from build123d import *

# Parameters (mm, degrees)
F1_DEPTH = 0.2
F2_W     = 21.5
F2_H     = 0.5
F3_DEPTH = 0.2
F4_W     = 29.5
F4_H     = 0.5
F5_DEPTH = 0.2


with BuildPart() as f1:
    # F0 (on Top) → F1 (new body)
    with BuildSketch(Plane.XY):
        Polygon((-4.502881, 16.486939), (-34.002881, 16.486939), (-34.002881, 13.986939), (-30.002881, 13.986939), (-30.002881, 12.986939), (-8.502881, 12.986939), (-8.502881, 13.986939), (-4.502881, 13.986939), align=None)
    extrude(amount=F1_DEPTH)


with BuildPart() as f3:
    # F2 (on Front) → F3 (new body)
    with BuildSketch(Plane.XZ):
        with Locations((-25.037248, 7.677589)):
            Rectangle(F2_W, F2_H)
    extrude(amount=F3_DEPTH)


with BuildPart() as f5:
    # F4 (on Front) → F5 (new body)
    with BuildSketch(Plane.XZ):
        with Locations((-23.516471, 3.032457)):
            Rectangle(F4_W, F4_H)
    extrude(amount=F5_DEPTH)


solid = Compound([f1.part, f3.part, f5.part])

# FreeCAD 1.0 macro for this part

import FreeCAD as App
import Part
import Sketcher
Q = App.Units.Quantity

doc = App.newDocument("Part")
body = doc.addObject("PartDesign::Body", "Body")

# Sketch on XY plane
sketch1 = body.newObject("Sketcher::SketchObject", "Sketch")
sketch1.AttachmentSupport = (doc.getObject("XY_Plane"), [""])
sketch1.MapMode = "FlatFace"
sketch1.addGeometry([
    Part.LineSegment(App.Vector(-4.5, 16.5, 0), App.Vector(-34, 16.5, 0)),  # 0
    Part.LineSegment(App.Vector(-34, 16.5, 0), App.Vector(-34, 14, 0)),  # 1
    Part.LineSegment(App.Vector(-34, 14, 0), App.Vector(-30, 14, 0)),  # 2
    Part.LineSegment(App.Vector(-30, 14, 0), App.Vector(-30, 13, 0)),  # 3
    Part.LineSegment(App.Vector(-30, 13, 0), App.Vector(-8.5, 13, 0)),  # 4
    Part.LineSegment(App.Vector(-8.5, 13, 0), App.Vector(-8.5, 14, 0)),  # 5
    Part.LineSegment(App.Vector(-8.5, 14, 0), App.Vector(-4.5, 14, 0)),  # 6
    Part.LineSegment(App.Vector(-4.5, 14, 0), App.Vector(-4.5, 16.5, 0)),  # 7
], False)
sketch1.addConstraint([
    Sketcher.Constraint("Coincident", 0, 2, 1, 1),
    Sketcher.Constraint("Coincident", 1, 2, 2, 1),
    Sketcher.Constraint("Coincident", 2, 2, 3, 1),
    Sketcher.Constraint("Coincident", 3, 2, 4, 1),
    Sketcher.Constraint("Coincident", 4, 2, 5, 1),
    Sketcher.Constraint("Coincident", 5, 2, 6, 1),
    Sketcher.Constraint("Coincident", 6, 2, 7, 1),
    Sketcher.Constraint("Coincident", 7, 2, 0, 1),
    Sketcher.Constraint("Horizontal", 0),
    Sketcher.Constraint("Vertical", 1),
    Sketcher.Constraint("Horizontal", 2),
    Sketcher.Constraint("Vertical", 3),
    Sketcher.Constraint("Horizontal", 4),
    Sketcher.Constraint("Vertical", 5),
    Sketcher.Constraint("Horizontal", 6),
    Sketcher.Constraint("Vertical", 7),
    Sketcher.Constraint("Horizontal", 2, 2, 5, 2),
    Sketcher.Constraint("Equal", 2, 6),
    Sketcher.Constraint("DistanceX", 2, 1, 2, 2, Q("4 mm")),
    Sketcher.Constraint("DistanceY", 3, 2, 3, 1, Q("1 mm")),
    Sketcher.Constraint("DistanceX", 0, 2, 0, 1, Q("29.5 mm")),
    Sketcher.Constraint("DistanceY", 1, 2, 1, 1, Q("2.5 mm")),
    Sketcher.Constraint("DistanceX", 0, 2, -1, 1, Q("34.002881 mm")),
    Sketcher.Constraint("DistanceY", -1, 1, 0, 2, Q("16.486939 mm")),
])
pad1 = body.newObject("PartDesign::Pad", "Pad")
pad1.Profile = sketch1
pad1.Length = 0.2
body2 = doc.addObject("PartDesign::Body", "Body001")

# Sketch on XZ plane
sketch2 = body2.newObject("Sketcher::SketchObject", "Sketch001")
sketch2.AttachmentSupport = (doc.getObject("XZ_Plane001"), [""])
sketch2.MapMode = "FlatFace"
sketch2.addGeometry([
    Part.LineSegment(App.Vector(-35.8, 7.9, 0), App.Vector(-35.8, 7.4, 0)),
    Part.LineSegment(App.Vector(-35.8, 7.4, 0), App.Vector(-14.3, 7.4, 0)),
    Part.LineSegment(App.Vector(-14.3, 7.4, 0), App.Vector(-14.3, 7.9, 0)),
    Part.LineSegment(App.Vector(-14.3, 7.9, 0), App.Vector(-35.8, 7.9, 0)),
], False)
sketch2.addConstraint([
    Sketcher.Constraint("Coincident", 0, 2, 1, 1),
    Sketcher.Constraint("Coincident", 1, 2, 2, 1),
    Sketcher.Constraint("Coincident", 2, 2, 3, 1),
    Sketcher.Constraint("Coincident", 3, 2, 0, 1),
    Sketcher.Constraint("Vertical", 0),
    Sketcher.Constraint("Horizontal", 1),
    Sketcher.Constraint("Vertical", 2),
    Sketcher.Constraint("Horizontal", 3),
    Sketcher.Constraint("DistanceX", 1, 1, 1, 2, Q("21.5 mm")),
    Sketcher.Constraint("DistanceY", 0, 2, 0, 1, Q("0.5 mm")),
    Sketcher.Constraint("DistanceY", -1, 1, 0, 2, Q("7.427589 mm")),
    Sketcher.Constraint("DistanceX", 0, 2, -1, 1, Q("35.787248 mm")),
])
pad2 = body2.newObject("PartDesign::Pad", "Pad001")
pad2.Profile = sketch2
pad2.Length = 0.2
body3 = doc.addObject("PartDesign::Body", "Body002")

# Sketch on XZ plane
sketch3 = body3.newObject("Sketcher::SketchObject", "Sketch002")
sketch3.AttachmentSupport = (doc.getObject("XZ_Plane002"), [""])
sketch3.MapMode = "FlatFace"
sketch3.addGeometry([
    Part.LineSegment(App.Vector(-38.3, 3.3, 0), App.Vector(-38.3, 2.8, 0)),
    Part.LineSegment(App.Vector(-38.3, 2.8, 0), App.Vector(-8.8, 2.8, 0)),
    Part.LineSegment(App.Vector(-8.8, 2.8, 0), App.Vector(-8.8, 3.3, 0)),
    Part.LineSegment(App.Vector(-8.8, 3.3, 0), App.Vector(-38.3, 3.3, 0)),
], False)
sketch3.addConstraint([
    Sketcher.Constraint("Coincident", 0, 2, 1, 1),
    Sketcher.Constraint("Coincident", 1, 2, 2, 1),
    Sketcher.Constraint("Coincident", 2, 2, 3, 1),
    Sketcher.Constraint("Coincident", 3, 2, 0, 1),
    Sketcher.Constraint("Vertical", 0),
    Sketcher.Constraint("Horizontal", 1),
    Sketcher.Constraint("Vertical", 2),
    Sketcher.Constraint("Horizontal", 3),
    Sketcher.Constraint("DistanceX", 1, 1, 1, 2, Q("29.5 mm")),
    Sketcher.Constraint("DistanceY", 0, 2, 0, 1, Q("0.5 mm")),
    Sketcher.Constraint("DistanceX", 0, 2, -1, 1, Q("38.266471 mm")),
    Sketcher.Constraint("DistanceY", -1, 1, 0, 2, Q("2.782457 mm")),
])
pad3 = body3.newObject("PartDesign::Pad", "Pad002")
pad3.Profile = sketch3
pad3.Length = 0.2

doc.recompute()
